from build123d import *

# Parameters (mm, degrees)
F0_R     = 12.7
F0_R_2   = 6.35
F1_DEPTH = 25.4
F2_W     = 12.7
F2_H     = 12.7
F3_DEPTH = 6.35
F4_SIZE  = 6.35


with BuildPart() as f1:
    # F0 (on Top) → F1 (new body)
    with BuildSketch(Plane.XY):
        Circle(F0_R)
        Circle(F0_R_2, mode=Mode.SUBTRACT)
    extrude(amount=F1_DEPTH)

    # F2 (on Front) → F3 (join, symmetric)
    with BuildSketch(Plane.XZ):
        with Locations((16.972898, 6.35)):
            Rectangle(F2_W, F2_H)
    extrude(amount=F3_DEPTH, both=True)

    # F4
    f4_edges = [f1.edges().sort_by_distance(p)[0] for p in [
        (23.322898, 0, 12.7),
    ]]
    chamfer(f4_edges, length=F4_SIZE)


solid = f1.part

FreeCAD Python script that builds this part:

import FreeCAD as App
import Part
import Sketcher

V = App.Vector
Q = App.Units.Quantity


def edges_at(feature, points):
    """Names of the edges that pass closest to the given points."""
    edges = feature.Shape.Edges
    near = lambda p: min(range(len(edges)), key=lambda i: edges[i].distToShape(Part.Vertex(*p))[0])
    return sorted({f"Edge{near(p) + 1}" for p in points})

doc = App.newDocument("Part")
body = doc.addObject("PartDesign::Body", "Body")

# Sketch on XY plane
sketch1 = body.newObject("Sketcher::SketchObject", "Sketch")
sketch1.AttachmentSupport = (doc.getObject("XY_Plane"), [""])
sketch1.MapMode = "FlatFace"
sketch1.addGeometry(Part.Circle(V(0, 0, 0), V(0, 0, 1), 13), False)
sketch1.addGeometry(Part.Circle(V(0, 0, 0), V(0, 0, 1), 6), False)
sketch1.addConstraint(Sketcher.Constraint("Coincident", 0, 3, -1, 1))
sketch1.addConstraint(Sketcher.Constraint("Coincident", 1, 3, -1, 1))
sketch1.addConstraint(Sketcher.Constraint("Diameter", 0, Q("1 in")))
sketch1.addConstraint(Sketcher.Constraint("Diameter", 1, Q("0.5 in")))
pad1 = body.newObject("PartDesign::Pad", "Pad")
pad1.Profile = sketch1
pad1.Length = Q("1 in")

# Sketch on XZ plane
sketch2 = body.newObject("Sketcher::SketchObject", "Sketch001")
sketch2.AttachmentSupport = (doc.getObject("XZ_Plane"), [""])
sketch2.MapMode = "FlatFace"
sketch2.addGeometry(Part.LineSegment(V(11, 13, 0), V(11, 0, 0)), False)
sketch2.addGeometry(Part.LineSegment(V(11, 0, 0), V(23, 0, 0)), False)
sketch2.addGeometry(Part.LineSegment(V(23, 0, 0), V(23, 13, 0)), False)
sketch2.addGeometry(Part.LineSegment(V(23, 13, 0), V(11, 13, 0)), False)
sketch2.addConstraint(Sketcher.Constraint("Coincident", 0, 2, 1, 1))
sketch2.addConstraint(Sketcher.Constraint("Coincident", 1, 2, 2, 1))
sketch2.addConstraint(Sketcher.Constraint("Coincident", 2, 2, 3, 1))
sketch2.addConstraint(Sketcher.Constraint("Coincident", 3, 2, 0, 1))
sketch2.addConstraint(Sketcher.Constraint("Vertical", 0))
sketch2.addConstraint(Sketcher.Constraint("Horizontal", 1))
sketch2.addConstraint(Sketcher.Constraint("Vertical", 2))
sketch2.addConstraint(Sketcher.Constraint("Horizontal", 3))
sketch2.addConstraint(Sketcher.Constraint("PointOnObject", 0, 2, -1))
sketch2.addConstraint(Sketcher.Constraint("Equal", 3, 0))
sketch2.addConstraint(Sketcher.Constraint("DistanceX", 1, 1, 1, 2, Q("0.5 in")))
sketch2.addConstraint(Sketcher.Constraint("DistanceX", -1, 1, 0, 2, Q("10.622898 mm")))
pad2 = body.newObject("PartDesign::Pad", "Pad001")
pad2.Profile = sketch2
pad2.Length = Q("0.5 in")
pad2.Midplane = True
doc.recompute()

chamfer = body.newObject("PartDesign::Chamfer", "Chamfer")
chamfer.Base = (pad2, edges_at(pad2, [(23.323, 0, 12.7)]))
chamfer.Size = Q("0.25 in")

doc.recompute()
